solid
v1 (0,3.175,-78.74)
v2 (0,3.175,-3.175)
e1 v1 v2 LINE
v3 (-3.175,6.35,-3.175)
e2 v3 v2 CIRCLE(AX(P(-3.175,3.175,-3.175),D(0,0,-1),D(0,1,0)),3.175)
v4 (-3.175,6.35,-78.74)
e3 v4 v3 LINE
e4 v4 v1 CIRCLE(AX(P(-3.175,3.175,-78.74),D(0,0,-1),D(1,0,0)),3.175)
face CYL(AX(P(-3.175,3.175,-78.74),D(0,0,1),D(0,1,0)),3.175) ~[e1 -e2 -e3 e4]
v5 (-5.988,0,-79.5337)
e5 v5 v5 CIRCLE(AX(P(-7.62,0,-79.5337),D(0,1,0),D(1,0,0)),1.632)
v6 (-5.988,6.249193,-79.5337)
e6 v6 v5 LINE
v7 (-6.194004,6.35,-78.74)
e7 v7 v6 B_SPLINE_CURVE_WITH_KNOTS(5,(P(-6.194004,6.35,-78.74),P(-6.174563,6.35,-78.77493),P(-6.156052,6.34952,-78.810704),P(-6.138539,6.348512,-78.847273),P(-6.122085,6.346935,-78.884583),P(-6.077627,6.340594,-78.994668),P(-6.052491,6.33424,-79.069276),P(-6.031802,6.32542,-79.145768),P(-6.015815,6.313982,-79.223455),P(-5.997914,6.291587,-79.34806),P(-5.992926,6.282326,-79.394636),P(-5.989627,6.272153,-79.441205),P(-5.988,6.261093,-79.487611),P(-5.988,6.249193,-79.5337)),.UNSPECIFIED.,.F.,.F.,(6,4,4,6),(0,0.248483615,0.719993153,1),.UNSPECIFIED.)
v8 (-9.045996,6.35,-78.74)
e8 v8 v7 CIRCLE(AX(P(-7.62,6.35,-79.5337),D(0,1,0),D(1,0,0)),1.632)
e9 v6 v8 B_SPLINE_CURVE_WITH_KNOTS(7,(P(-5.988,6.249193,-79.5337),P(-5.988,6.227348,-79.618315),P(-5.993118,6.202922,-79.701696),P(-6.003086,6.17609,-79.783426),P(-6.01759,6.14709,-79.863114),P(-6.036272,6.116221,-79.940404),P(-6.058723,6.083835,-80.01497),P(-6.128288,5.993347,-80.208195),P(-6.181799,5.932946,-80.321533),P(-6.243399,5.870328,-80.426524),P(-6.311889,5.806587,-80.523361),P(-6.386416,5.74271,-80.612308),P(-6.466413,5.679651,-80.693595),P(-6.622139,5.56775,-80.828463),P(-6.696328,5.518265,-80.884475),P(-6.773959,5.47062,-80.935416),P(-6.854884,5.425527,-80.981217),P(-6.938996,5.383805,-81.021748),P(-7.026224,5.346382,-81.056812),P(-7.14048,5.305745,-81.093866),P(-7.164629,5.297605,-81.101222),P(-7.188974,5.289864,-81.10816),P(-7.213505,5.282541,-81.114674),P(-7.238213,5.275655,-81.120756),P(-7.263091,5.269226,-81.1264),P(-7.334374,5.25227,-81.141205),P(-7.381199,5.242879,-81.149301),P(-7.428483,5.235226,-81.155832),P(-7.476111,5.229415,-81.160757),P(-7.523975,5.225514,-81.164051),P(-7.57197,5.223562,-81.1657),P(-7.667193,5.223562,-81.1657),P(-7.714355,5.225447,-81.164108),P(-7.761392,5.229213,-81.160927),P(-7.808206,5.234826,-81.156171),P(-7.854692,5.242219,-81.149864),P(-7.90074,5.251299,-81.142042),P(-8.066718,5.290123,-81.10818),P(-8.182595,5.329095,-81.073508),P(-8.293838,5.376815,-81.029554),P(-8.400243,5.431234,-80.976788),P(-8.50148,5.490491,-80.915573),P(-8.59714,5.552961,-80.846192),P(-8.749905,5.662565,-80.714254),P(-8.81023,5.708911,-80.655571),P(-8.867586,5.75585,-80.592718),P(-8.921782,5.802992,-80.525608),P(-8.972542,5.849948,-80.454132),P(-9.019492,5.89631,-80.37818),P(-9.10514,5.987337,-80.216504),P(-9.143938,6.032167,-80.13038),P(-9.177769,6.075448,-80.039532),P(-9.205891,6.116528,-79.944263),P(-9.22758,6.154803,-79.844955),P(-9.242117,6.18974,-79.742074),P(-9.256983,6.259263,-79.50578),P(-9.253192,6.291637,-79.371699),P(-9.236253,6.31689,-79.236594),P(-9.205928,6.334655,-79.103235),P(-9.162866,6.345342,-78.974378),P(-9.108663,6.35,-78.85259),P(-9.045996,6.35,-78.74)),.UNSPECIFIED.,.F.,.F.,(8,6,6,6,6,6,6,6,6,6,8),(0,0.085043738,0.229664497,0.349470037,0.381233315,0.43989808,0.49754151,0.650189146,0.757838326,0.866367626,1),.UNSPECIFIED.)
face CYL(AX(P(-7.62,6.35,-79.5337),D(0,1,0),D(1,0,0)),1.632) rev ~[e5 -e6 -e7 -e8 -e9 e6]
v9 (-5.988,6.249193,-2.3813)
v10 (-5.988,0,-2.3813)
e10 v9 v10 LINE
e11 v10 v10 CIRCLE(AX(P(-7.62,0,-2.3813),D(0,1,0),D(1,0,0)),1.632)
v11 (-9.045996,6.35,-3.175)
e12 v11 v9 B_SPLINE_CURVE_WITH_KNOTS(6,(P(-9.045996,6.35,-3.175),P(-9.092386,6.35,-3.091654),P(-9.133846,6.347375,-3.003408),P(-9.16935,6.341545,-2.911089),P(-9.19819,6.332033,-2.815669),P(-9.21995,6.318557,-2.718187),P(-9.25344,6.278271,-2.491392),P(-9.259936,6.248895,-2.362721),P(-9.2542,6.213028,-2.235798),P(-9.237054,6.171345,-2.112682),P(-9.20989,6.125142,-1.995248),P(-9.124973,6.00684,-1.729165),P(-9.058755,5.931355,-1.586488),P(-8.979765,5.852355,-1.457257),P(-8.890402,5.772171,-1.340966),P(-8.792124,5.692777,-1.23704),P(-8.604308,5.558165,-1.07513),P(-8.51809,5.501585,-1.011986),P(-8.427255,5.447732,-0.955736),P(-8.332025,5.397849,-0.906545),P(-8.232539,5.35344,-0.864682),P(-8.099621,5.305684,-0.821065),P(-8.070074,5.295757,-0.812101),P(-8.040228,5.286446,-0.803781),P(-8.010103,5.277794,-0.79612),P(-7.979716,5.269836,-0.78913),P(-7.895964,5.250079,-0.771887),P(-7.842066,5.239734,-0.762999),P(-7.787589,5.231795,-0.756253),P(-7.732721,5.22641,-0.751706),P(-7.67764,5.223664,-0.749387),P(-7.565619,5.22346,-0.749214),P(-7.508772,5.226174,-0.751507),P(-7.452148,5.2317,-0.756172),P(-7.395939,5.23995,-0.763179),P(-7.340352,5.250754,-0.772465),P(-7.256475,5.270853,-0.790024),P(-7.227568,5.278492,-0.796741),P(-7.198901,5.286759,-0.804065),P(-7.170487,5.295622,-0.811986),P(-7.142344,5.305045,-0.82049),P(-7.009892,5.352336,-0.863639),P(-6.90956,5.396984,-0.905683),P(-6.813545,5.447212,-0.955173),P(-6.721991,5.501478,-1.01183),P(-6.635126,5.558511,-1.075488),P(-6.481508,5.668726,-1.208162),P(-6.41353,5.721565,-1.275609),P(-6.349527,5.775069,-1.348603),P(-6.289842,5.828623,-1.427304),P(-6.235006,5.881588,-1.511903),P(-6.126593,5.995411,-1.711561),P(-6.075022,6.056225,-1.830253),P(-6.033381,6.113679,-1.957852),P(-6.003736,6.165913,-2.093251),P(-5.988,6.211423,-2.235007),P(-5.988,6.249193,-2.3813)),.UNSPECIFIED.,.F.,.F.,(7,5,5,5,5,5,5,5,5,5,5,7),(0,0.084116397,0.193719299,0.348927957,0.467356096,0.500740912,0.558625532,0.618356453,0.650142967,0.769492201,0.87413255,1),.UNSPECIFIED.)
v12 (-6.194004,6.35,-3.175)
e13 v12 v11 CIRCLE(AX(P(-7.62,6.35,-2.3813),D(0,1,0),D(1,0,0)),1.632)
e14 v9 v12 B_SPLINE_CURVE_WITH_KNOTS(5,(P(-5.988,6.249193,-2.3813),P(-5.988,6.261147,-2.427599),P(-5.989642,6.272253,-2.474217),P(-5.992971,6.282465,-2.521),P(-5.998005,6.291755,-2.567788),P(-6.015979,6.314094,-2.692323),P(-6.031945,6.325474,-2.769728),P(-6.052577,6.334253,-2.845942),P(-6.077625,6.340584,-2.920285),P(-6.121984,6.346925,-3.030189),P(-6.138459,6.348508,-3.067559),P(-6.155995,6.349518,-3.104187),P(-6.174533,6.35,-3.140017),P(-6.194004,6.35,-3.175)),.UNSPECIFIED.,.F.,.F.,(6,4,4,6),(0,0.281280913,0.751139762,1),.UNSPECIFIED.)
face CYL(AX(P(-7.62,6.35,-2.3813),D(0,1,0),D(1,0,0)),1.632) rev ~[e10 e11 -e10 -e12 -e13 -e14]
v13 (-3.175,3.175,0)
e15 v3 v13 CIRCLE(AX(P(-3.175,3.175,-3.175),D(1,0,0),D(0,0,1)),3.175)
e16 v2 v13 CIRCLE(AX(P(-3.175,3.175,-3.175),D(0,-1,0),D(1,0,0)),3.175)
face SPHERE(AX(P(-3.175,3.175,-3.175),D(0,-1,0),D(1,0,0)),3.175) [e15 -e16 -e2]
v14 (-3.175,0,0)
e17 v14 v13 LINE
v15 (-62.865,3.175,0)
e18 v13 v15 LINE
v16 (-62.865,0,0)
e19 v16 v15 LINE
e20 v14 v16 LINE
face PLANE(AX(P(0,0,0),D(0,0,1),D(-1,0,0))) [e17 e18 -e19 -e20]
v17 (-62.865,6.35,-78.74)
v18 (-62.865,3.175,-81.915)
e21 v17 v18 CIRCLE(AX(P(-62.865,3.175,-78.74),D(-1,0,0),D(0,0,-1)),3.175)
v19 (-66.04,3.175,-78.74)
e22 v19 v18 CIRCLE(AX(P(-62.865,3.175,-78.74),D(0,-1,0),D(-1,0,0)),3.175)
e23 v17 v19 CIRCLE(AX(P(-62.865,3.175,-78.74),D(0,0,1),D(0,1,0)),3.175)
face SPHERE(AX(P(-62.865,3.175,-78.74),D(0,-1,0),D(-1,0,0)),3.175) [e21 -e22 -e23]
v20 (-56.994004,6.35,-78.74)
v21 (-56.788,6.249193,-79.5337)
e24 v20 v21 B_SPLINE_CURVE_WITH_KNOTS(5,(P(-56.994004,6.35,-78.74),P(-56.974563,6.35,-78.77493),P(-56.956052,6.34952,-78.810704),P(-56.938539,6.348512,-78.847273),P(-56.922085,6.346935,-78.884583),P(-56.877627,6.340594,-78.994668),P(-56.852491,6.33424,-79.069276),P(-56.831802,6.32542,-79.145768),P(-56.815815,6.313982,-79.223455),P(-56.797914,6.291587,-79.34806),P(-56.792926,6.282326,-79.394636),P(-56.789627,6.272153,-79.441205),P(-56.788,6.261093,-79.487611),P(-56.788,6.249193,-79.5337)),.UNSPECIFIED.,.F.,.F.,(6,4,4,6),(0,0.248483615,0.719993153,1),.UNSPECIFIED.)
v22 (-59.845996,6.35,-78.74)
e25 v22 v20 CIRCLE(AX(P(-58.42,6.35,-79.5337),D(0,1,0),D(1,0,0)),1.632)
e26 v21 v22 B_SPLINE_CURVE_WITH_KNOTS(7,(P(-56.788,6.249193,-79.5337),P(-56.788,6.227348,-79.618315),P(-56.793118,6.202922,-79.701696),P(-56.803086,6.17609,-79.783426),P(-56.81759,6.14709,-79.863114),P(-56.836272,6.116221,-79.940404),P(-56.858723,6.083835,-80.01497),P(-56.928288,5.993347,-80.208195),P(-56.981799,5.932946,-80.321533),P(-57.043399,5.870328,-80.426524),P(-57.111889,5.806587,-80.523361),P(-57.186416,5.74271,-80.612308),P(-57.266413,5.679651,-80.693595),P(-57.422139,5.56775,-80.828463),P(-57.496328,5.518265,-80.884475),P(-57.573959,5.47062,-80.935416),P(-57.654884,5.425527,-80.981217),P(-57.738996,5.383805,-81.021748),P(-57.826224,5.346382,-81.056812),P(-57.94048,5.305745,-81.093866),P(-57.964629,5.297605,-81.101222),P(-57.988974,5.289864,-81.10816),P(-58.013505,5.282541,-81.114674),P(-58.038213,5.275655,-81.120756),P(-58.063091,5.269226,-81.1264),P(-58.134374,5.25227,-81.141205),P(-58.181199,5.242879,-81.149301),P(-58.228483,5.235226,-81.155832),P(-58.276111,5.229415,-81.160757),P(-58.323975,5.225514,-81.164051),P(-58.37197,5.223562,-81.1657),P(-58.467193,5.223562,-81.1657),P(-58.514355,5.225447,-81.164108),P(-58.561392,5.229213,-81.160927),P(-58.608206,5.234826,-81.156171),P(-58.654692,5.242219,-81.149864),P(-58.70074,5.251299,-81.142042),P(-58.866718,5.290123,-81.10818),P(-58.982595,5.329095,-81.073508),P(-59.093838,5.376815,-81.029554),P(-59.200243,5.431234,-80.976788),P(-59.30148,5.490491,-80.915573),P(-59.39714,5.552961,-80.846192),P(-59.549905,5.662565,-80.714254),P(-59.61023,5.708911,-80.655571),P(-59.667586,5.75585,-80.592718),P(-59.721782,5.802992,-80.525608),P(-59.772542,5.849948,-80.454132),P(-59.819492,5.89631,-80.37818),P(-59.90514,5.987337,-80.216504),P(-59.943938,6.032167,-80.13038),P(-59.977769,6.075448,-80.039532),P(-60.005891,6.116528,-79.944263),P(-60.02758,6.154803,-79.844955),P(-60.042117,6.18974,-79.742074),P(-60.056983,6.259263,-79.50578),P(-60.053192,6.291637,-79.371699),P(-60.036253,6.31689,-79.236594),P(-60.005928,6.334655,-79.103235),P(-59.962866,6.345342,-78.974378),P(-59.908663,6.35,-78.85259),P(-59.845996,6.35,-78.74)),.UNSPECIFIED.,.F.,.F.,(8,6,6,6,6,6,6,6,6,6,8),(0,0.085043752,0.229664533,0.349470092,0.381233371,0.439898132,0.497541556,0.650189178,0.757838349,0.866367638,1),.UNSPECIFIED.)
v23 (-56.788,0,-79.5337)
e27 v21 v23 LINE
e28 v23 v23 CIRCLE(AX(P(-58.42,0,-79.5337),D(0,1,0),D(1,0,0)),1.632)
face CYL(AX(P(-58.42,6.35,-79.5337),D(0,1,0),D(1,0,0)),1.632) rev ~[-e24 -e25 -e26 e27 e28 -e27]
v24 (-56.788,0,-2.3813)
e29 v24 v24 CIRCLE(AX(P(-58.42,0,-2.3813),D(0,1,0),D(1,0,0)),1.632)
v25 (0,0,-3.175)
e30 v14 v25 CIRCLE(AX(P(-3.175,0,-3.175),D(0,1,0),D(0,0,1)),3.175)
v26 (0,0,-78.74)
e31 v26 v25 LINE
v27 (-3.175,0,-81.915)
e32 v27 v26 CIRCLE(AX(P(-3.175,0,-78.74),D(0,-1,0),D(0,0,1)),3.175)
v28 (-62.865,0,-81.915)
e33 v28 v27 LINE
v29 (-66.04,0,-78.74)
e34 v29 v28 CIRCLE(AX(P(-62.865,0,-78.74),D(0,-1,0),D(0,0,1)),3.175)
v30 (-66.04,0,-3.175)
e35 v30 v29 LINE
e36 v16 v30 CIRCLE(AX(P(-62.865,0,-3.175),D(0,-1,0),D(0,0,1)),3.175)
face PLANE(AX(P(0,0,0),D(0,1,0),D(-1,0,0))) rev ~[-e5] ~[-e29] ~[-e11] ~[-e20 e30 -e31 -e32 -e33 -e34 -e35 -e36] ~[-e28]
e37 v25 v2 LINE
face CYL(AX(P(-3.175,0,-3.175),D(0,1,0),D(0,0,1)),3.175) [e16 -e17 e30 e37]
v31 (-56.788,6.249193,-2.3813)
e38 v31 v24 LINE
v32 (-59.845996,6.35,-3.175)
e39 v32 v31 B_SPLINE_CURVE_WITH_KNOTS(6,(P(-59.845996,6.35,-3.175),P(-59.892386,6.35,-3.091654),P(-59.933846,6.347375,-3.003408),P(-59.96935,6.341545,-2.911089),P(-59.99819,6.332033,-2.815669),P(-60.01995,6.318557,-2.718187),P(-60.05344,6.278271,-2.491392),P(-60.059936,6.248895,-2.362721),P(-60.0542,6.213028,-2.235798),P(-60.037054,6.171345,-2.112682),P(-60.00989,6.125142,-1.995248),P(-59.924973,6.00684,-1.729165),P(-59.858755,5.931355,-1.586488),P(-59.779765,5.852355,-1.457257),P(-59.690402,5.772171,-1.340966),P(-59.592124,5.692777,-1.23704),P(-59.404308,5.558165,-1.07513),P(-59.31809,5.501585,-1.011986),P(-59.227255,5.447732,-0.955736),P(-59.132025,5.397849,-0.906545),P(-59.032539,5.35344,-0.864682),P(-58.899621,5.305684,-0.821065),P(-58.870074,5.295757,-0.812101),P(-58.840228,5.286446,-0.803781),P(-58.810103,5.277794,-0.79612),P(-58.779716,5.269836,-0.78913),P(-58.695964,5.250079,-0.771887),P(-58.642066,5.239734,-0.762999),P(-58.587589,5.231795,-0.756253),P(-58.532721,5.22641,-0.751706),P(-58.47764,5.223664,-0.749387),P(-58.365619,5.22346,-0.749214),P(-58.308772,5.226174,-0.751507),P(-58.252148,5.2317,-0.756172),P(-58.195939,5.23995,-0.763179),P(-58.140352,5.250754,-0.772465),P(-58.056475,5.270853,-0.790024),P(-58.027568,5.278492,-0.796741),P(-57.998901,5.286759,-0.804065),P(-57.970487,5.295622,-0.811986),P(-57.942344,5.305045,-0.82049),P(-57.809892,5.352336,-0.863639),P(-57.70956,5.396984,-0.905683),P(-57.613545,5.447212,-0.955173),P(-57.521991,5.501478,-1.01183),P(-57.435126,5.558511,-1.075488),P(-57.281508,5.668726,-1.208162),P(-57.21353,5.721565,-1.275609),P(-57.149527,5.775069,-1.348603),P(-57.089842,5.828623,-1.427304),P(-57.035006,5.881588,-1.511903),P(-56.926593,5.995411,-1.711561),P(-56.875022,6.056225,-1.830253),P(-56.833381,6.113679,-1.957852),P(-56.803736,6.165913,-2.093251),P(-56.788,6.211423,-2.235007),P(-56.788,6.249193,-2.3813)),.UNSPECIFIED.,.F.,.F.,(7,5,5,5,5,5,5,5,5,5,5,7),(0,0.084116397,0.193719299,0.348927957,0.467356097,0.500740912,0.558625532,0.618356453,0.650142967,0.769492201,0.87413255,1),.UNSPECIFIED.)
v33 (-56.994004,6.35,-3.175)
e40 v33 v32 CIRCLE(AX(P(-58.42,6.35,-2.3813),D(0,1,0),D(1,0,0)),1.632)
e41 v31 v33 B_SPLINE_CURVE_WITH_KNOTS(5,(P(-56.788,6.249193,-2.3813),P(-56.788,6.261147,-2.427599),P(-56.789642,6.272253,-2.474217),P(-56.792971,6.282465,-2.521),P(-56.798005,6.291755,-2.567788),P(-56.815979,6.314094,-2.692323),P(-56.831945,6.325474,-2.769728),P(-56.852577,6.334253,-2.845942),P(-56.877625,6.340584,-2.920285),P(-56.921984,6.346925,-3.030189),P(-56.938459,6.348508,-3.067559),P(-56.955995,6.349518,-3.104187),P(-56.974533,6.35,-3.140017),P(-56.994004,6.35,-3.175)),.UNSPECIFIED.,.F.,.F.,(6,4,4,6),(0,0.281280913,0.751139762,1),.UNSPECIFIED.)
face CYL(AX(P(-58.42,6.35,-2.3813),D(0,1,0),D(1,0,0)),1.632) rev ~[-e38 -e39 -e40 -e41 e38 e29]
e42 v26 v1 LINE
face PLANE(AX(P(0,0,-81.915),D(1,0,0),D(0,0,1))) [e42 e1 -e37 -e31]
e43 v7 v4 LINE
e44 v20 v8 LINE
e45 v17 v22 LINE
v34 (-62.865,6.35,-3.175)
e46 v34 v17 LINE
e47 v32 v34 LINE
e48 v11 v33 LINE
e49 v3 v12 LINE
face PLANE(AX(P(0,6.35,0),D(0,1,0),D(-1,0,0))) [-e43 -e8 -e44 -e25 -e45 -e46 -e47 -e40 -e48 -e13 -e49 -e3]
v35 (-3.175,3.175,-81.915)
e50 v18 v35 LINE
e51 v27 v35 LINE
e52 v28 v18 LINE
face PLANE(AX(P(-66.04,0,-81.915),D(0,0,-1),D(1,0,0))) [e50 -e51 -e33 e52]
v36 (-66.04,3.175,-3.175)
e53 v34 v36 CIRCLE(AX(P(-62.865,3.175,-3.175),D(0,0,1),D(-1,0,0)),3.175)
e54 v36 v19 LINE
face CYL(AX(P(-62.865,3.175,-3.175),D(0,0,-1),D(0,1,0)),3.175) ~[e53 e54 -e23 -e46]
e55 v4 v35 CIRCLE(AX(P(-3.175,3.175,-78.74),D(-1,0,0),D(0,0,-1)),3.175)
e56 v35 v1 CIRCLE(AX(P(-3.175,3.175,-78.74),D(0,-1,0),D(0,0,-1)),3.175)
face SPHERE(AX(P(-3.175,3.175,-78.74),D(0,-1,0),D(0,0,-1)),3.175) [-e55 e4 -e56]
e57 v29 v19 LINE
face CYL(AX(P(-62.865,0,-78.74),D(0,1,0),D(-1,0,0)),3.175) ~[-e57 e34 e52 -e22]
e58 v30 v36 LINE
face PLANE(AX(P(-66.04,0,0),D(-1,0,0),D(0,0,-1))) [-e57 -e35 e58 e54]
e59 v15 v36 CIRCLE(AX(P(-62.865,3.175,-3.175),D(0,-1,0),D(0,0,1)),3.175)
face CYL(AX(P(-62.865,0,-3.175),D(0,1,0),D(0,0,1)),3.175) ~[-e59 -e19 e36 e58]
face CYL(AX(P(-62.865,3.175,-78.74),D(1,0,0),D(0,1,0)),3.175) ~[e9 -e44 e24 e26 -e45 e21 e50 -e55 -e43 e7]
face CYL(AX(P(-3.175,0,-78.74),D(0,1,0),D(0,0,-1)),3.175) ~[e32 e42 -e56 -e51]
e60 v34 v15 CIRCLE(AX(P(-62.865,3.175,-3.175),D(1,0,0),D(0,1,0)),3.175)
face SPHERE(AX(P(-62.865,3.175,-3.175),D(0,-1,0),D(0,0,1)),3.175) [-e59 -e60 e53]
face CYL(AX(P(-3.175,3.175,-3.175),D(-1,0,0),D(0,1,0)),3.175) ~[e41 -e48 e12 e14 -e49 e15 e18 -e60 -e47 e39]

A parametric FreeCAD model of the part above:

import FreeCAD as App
import Part
import Sketcher
Q = App.Units.Quantity


def edges_at(feature, points):
    """Names of the edges that pass closest to the given points."""
    edges = feature.Shape.Edges
    near = lambda p: min(range(len(edges)), key=lambda i: edges[i].distToShape(Part.Vertex(*p))[0])
    return sorted({f"Edge{near(p) + 1}" for p in points})


def add_polygon(sketch, points):
    """Adds a closed chain of lines whose ends are joined by coincident constraints."""
    first, n = sketch.GeometryCount, len(points)
    for a, b in zip(points, points[1:] + points[:1]):
        sketch.addGeometry(Part.LineSegment(App.Vector(*a, 0), App.Vector(*b, 0)), False)
    for i in range(n):
        sketch.addConstraint(Sketcher.Constraint("Coincident", first + i, 2, first + (i + 1) % n, 1))

doc = App.newDocument("Part")
body = doc.addObject("PartDesign::Body", "Body")

# Sketch on XZ plane
sketch1 = body.newObject("Sketcher::SketchObject", "Sketch")
sketch1.AttachmentSupport = (doc.getObject("XZ_Plane"), [""])
sketch1.MapMode = "FlatFace"
add_polygon(sketch1, [(-66, 0), (0, 0), (0, -82), (-66, -82)])  # lines 0-3
sketch1.addConstraint(Sketcher.Constraint("Horizontal", 0))
sketch1.addConstraint(Sketcher.Constraint("Vertical", 1))
sketch1.addConstraint(Sketcher.Constraint("Horizontal", 2))
sketch1.addConstraint(Sketcher.Constraint("Vertical", 3))
sketch1.addConstraint(Sketcher.Constraint("Coincident", 0, 2, -1, 1))
sketch1.addConstraint(Sketcher.Constraint("DistanceX", 0, 1, 0, 2, Q("2.6 in")))
sketch1.addConstraint(Sketcher.Constraint("DistanceY", 1, 2, 1, 1, Q("3.225 in")))
pad1 = body.newObject("PartDesign::Pad", "Pad")
pad1.Profile = sketch1
pad1.Length = Q("0.25 in")
pad1.Reversed = True
doc.recompute()

fillet = body.newObject("PartDesign::Fillet", "Fillet")
fillet.Base = (pad1, edges_at(pad1, [
    (0, 3.175, 0),
    (-66.04, 3.175, 0),
    (0, 3.175, -81.915),
    (-66.04, 3.175, -81.915),
]))
fillet.Radius = Q("0.125 in")
doc.recompute()

fillet2 = body.newObject("PartDesign::Fillet", "Fillet001")
fillet2.Base = (fillet, edges_at(fillet, [
    (-0.93, 6.35, -80.985),
    (-33.02, 6.35, -81.915),
    (-65.11, 6.35, -80.985),
    (-66.04, 6.35, -40.958),
    (-65.11, 6.35, -0.93),
    (-33.02, 6.35, 0),
    (-0.93, 6.35, -0.93),
    (0, 6.35, -40.958),
]))
fillet2.Radius = Q("0.125 in")

# Sketch on XZ plane
sketch2 = body.newObject("Sketcher::SketchObject", "Sketch001")
sketch2.AttachmentSupport = (doc.getObject("XZ_Plane"), [""])
sketch2.MapMode = "FlatFace"
sketch2.AttachmentOffset = App.Placement(App.Vector(0, 0, -0.25 * 25.4), App.Rotation())
sketch2.addGeometry(Part.Circle(App.Vector(-7.6, -2.4, 0), App.Vector(0, 0, 1), 1.6), False)
sketch2.addGeometry(Part.Circle(App.Vector(-58.4, -2.4, 0), App.Vector(0, 0, 1), 1.6), False)
sketch2.addGeometry(Part.Circle(App.Vector(-7.6, -79.5, 0), App.Vector(0, 0, 1), 1.6), False)
sketch2.addGeometry(Part.Circle(App.Vector(-58.4, -79.5, 0), App.Vector(0, 0, 1), 1.6), False)
sketch2.addConstraint(Sketcher.Constraint("Equal", 0, 1))
sketch2.addConstraint(Sketcher.Constraint("Equal", 1, 2))
sketch2.addConstraint(Sketcher.Constraint("Equal", 2, 3))
sketch2.addConstraint(Sketcher.Constraint("Horizontal", 0, 3, 1, 3))
sketch2.addConstraint(Sketcher.Constraint("Horizontal", 2, 3, 3, 3))
sketch2.addConstraint(Sketcher.Constraint("Vertical", 0, 3, 2, 3))
sketch2.addConstraint(Sketcher.Constraint("Vertical", 1, 3, 3, 3))
sketch2.addConstraint(Sketcher.Constraint("Diameter", 0, Q("0.1285 in")))
sketch2.addConstraint(Sketcher.Constraint("DistanceY", 0, 3, -1, 1, Q("0.093752 in")))
sketch2.addConstraint(Sketcher.Constraint("DistanceX", 1, 3, 0, 3, Q("2 in")))
sketch2.addConstraint(Sketcher.Constraint("DistanceX", 0, 3, -1, 1, Q("0.3 in")))
sketch2.addConstraint(Sketcher.Constraint("DistanceY", 2, 3, 0, 3, Q("3.0375 in")))
pocket1 = body.newObject("PartDesign::Pocket", "Pocket")
pocket1.Profile = sketch2
pocket1.Length = Q("0.25 in")
pocket1.Reversed = True

doc.recompute()
